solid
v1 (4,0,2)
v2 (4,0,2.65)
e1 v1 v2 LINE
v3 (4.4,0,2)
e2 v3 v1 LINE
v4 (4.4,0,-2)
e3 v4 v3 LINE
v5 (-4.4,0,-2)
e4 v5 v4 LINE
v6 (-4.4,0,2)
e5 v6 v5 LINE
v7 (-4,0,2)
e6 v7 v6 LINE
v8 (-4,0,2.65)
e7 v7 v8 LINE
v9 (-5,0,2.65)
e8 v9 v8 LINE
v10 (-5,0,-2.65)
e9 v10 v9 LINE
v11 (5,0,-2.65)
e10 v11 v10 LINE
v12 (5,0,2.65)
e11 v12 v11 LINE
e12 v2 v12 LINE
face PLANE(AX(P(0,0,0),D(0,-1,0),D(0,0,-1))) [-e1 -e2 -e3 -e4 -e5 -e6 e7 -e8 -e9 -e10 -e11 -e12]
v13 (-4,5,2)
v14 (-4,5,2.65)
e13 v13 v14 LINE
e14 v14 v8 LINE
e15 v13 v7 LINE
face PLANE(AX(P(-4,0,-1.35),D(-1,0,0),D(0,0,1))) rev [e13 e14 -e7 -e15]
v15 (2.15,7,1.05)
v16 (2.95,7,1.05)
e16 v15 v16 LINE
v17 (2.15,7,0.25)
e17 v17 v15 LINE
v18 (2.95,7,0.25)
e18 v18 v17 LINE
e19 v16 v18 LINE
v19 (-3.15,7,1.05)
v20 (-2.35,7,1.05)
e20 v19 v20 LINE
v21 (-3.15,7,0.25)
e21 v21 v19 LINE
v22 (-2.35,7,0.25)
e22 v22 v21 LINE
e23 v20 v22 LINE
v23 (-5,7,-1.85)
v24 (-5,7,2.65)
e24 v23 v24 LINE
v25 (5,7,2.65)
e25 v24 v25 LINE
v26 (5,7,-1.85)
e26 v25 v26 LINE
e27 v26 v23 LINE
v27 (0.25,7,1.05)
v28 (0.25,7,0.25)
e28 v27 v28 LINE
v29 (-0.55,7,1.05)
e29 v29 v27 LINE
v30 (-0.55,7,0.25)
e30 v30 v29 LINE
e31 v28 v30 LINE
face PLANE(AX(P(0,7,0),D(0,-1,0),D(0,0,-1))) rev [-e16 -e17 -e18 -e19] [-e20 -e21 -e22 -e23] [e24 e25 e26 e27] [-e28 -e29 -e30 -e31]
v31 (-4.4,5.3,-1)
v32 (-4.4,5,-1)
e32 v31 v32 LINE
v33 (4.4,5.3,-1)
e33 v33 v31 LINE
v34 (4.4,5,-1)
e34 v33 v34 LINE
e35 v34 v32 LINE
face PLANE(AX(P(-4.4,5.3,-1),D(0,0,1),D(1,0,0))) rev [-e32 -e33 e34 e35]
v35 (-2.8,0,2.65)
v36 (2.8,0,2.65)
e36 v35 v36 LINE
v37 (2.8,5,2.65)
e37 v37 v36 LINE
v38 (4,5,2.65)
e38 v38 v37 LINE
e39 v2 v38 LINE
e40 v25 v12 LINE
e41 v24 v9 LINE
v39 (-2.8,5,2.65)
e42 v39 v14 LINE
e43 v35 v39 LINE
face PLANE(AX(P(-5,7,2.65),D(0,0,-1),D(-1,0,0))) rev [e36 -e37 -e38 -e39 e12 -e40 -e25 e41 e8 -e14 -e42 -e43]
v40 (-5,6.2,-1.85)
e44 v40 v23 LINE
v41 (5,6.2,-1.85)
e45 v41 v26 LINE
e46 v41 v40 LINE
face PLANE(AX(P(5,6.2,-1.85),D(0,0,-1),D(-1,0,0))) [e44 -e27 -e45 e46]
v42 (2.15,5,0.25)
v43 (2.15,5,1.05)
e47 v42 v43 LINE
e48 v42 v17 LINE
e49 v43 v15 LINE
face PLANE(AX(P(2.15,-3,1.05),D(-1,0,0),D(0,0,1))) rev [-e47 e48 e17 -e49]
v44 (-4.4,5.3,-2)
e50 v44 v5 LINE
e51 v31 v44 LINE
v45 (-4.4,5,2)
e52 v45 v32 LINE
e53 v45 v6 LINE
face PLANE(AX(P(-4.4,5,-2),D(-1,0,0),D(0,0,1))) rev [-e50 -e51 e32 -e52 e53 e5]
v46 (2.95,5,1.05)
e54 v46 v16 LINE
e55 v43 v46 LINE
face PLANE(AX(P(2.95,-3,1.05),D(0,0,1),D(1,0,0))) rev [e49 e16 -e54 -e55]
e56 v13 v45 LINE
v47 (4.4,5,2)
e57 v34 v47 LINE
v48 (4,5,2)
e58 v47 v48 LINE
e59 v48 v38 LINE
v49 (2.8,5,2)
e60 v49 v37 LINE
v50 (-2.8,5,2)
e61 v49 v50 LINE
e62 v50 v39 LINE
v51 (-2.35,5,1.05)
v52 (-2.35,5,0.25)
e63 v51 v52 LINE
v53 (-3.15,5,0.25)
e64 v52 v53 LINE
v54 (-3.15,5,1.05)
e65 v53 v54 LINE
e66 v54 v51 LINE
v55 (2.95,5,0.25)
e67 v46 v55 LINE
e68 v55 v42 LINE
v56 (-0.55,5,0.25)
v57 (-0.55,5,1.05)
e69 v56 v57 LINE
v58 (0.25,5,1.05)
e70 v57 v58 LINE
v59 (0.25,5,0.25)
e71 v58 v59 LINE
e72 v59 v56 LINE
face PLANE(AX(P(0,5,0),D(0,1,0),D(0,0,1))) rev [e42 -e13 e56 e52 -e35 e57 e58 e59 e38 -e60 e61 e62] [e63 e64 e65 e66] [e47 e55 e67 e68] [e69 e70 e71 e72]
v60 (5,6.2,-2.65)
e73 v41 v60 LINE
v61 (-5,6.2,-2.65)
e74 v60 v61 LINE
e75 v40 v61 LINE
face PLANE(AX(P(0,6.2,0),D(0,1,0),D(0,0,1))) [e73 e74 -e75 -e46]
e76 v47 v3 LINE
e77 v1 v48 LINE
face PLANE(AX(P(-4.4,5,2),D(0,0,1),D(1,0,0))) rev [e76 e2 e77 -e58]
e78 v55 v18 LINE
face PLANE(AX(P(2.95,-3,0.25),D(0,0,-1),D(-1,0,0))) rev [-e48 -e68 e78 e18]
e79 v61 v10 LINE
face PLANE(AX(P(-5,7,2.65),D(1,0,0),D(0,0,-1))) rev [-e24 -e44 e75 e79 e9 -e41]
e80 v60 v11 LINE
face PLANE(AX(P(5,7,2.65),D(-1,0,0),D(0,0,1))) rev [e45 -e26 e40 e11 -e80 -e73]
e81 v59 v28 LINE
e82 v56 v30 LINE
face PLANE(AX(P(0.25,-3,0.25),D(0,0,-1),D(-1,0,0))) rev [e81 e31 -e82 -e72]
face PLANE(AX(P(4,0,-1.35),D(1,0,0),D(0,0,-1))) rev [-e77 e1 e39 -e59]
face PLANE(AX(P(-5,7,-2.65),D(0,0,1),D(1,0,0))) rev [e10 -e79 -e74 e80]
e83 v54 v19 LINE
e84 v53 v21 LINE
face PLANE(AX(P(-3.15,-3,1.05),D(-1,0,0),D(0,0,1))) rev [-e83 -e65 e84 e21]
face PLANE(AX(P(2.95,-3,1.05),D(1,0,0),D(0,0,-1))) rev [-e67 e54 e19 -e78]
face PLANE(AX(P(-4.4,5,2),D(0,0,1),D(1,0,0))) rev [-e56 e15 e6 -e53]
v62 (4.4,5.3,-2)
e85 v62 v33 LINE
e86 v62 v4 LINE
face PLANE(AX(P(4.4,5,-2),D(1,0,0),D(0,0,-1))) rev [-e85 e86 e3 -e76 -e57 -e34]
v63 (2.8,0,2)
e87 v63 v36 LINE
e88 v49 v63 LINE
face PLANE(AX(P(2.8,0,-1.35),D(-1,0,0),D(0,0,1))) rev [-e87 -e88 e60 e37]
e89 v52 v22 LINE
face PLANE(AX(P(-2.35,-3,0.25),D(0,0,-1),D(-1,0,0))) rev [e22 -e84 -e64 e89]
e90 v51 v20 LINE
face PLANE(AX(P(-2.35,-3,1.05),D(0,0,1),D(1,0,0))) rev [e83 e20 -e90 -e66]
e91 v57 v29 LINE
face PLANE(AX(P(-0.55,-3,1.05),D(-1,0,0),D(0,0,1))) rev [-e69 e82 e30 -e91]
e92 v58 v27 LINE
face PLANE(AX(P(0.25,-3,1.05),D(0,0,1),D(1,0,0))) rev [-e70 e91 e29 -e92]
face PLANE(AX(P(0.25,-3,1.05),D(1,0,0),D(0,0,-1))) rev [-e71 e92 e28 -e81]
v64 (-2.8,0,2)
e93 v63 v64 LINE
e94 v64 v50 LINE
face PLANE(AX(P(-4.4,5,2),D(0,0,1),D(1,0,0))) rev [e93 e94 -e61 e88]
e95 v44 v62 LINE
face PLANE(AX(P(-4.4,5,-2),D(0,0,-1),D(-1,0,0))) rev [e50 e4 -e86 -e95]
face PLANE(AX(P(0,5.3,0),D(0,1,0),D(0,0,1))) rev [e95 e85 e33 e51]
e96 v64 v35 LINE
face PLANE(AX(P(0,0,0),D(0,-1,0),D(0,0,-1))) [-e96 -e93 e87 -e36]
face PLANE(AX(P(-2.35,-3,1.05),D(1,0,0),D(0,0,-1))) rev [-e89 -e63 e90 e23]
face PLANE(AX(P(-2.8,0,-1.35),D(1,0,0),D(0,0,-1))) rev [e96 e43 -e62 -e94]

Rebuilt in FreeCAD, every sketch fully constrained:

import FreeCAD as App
import Part
import Sketcher
from FreeCAD import Vector
Q = App.Units.Quantity

doc = App.newDocument("Part")
body = doc.addObject("PartDesign::Body", "Body")

# Sketch on XZ plane
sketch1 = body.newObject("Sketcher::SketchObject", "Sketch")
sketch1.AttachmentSupport = (doc.getObject("XZ_Plane"), [""])
sketch1.MapMode = "FlatFace"
sketch1.addGeometry(Part.LineSegment(Vector(-5, -2.65, 0), Vector(-5, 2.65, 0)), False)
sketch1.addGeometry(Part.LineSegment(Vector(-5, 2.65, 0), Vector(5, 2.65, 0)), False)
sketch1.addGeometry(Part.LineSegment(Vector(5, 2.65, 0), Vector(5, -2.65, 0)), False)
sketch1.addGeometry(Part.LineSegment(Vector(5, -2.65, 0), Vector(-5, -2.65, 0)), False)
sketch1.addConstraint(Sketcher.Constraint("Coincident", 0, 2, 1, 1))
sketch1.addConstraint(Sketcher.Constraint("Coincident", 1, 2, 2, 1))
sketch1.addConstraint(Sketcher.Constraint("Coincident", 2, 2, 3, 1))
sketch1.addConstraint(Sketcher.Constraint("Coincident", 3, 2, 0, 1))
sketch1.addConstraint(Sketcher.Constraint("Vertical", 0))
sketch1.addConstraint(Sketcher.Constraint("Horizontal", 1))
sketch1.addConstraint(Sketcher.Constraint("Vertical", 2))
sketch1.addConstraint(Sketcher.Constraint("Horizontal", 3))
sketch1.addConstraint(Sketcher.Constraint("Symmetric", 0, 2, 2, 2, -1, 1))
sketch1.addConstraint(Sketcher.Constraint("DistanceX", 1, 1, 1, 2, Q("10 mm")))
sketch1.addConstraint(Sketcher.Constraint("DistanceY", 0, 1, 0, 2, Q("5.3 mm")))
pad1 = body.newObject("PartDesign::Pad", "Pad")
pad1.Profile = sketch1
pad1.Length = 7
pad1.Reversed = True

# Sketch on XZ plane
sketch2 = body.newObject("Sketcher::SketchObject", "Sketch001")
sketch2.AttachmentSupport = (doc.getObject("XZ_Plane"), [""])
sketch2.MapMode = "FlatFace"
sketch2.addGeometry(Part.LineSegment(Vector(-4.4, 2, 0), Vector(-4.4, -2, 0)), False)
sketch2.addGeometry(Part.LineSegment(Vector(-4.4, -2, 0), Vector(4.4, -2, 0)), False)
sketch2.addGeometry(Part.LineSegment(Vector(4.4, -2, 0), Vector(4.4, 2, 0)), False)
sketch2.addGeometry(Part.LineSegment(Vector(4.4, 2, 0), Vector(-4.4, 2, 0)), False)
sketch2.addConstraint(Sketcher.Constraint("Coincident", 0, 2, 1, 1))
sketch2.addConstraint(Sketcher.Constraint("Coincident", 1, 2, 2, 1))
sketch2.addConstraint(Sketcher.Constraint("Coincident", 2, 2, 3, 1))
sketch2.addConstraint(Sketcher.Constraint("Coincident", 3, 2, 0, 1))
sketch2.addConstraint(Sketcher.Constraint("Vertical", 0))
sketch2.addConstraint(Sketcher.Constraint("Horizontal", 1))
sketch2.addConstraint(Sketcher.Constraint("Vertical", 2))
sketch2.addConstraint(Sketcher.Constraint("Horizontal", 3))
sketch2.addConstraint(Sketcher.Constraint("Symmetric", 0, 2, 2, 2, -1, 1))
sketch2.addConstraint(Sketcher.Constraint("DistanceY", 0, 2, 0, 1, Q("4 mm")))
sketch2.addConstraint(Sketcher.Constraint("DistanceX", 1, 1, 1, 2, Q("8.8 mm")))
pocket1 = body.newObject("PartDesign::Pocket", "Pocket")
pocket1.Profile = sketch2
pocket1.Length = 5

# Sketch on XY plane
sketch3 = body.newObject("Sketcher::SketchObject", "Sketch002")
sketch3.AttachmentSupport = (doc.getObject("XY_Plane"), [""])
sketch3.MapMode = "FlatFace"
sketch3.AttachmentOffset = App.Placement(Vector(0, 0, 2.65), App.Rotation())
sketch3.addGeometry(Part.LineSegment(Vector(-4, 5, 0), Vector(-4, 0, 0)), False)
sketch3.addGeometry(Part.LineSegment(Vector(-4, 0, 0), Vector(-2.8, 0, 0)), False)
sketch3.addGeometry(Part.LineSegment(Vector(-2.8, 0, 0), Vector(-2.8, 5, 0)), False)
sketch3.addGeometry(Part.LineSegment(Vector(-2.8, 5, 0), Vector(-4, 5, 0)), False)
sketch3.addGeometry(Part.LineSegment(Vector(2.8, 5, 0), Vector(2.8, 0, 0)), False)
sketch3.addGeometry(Part.LineSegment(Vector(2.8, 0, 0), Vector(4, 0, 0)), False)
sketch3.addGeometry(Part.LineSegment(Vector(4, 0, 0), Vector(4, 5, 0)), False)
sketch3.addGeometry(Part.LineSegment(Vector(4, 5, 0), Vector(2.8, 5, 0)), False)
sketch3.addConstraint(Sketcher.Constraint("Coincident", 0, 2, 1, 1))
sketch3.addConstraint(Sketcher.Constraint("Coincident", 1, 2, 2, 1))
sketch3.addConstraint(Sketcher.Constraint("Coincident", 2, 2, 3, 1))
sketch3.addConstraint(Sketcher.Constraint("Coincident", 3, 2, 0, 1))
sketch3.addConstraint(Sketcher.Constraint("Coincident", 4, 2, 5, 1))
sketch3.addConstraint(Sketcher.Constraint("Coincident", 5, 2, 6, 1))
sketch3.addConstraint(Sketcher.Constraint("Coincident", 6, 2, 7, 1))
sketch3.addConstraint(Sketcher.Constraint("Coincident", 7, 2, 4, 1))
sketch3.addConstraint(Sketcher.Constraint("Vertical", 0))
sketch3.addConstraint(Sketcher.Constraint("Horizontal", 1))
sketch3.addConstraint(Sketcher.Constraint("Vertical", 2))
sketch3.addConstraint(Sketcher.Constraint("Horizontal", 3))
sketch3.addConstraint(Sketcher.Constraint("Vertical", 4))
sketch3.addConstraint(Sketcher.Constraint("Horizontal", 5))
sketch3.addConstraint(Sketcher.Constraint("Vertical", 6))
sketch3.addConstraint(Sketcher.Constraint("Horizontal", 7))
sketch3.addConstraint(Sketcher.Constraint("Symmetric", 1, 2, 4, 2, -1, 1))
sketch3.addConstraint(Sketcher.Constraint("Symmetric", 0, 2, 5, 2, -2))
sketch3.addConstraint(Sketcher.Constraint("Horizontal", 3, 2, 6, 2))
sketch3.addConstraint(Sketcher.Constraint("DistanceY", 0, 2, 0, 1, Q("5 mm")))
sketch3.addConstraint(Sketcher.Constraint("DistanceX", 1, 1, 1, 2, Q("1.2 mm")))
sketch3.addConstraint(Sketcher.Constraint("DistanceX", 0, 2, -1, 1, Q("4 mm")))
pocket2 = body.newObject("PartDesign::Pocket", "Pocket001")
pocket2.Profile = sketch3
pocket2.Length = 4

# Sketch on XZ plane
sketch4 = body.newObject("Sketcher::SketchObject", "Sketch003")
sketch4.AttachmentSupport = (doc.getObject("XZ_Plane"), [""])
sketch4.MapMode = "FlatFace"
sketch4.AttachmentOffset = App.Placement(Vector(0, 0, -7), App.Rotation())
sketch4.addGeometry(Part.LineSegment(Vector(-5, -2.65, 0), Vector(-5, -1.85, 0)), False)
sketch4.addGeometry(Part.LineSegment(Vector(-5, -1.85, 0), Vector(5, -1.85, 0)), False)
sketch4.addGeometry(Part.LineSegment(Vector(5, -1.85, 0), Vector(5, -2.65, 0)), False)
sketch4.addGeometry(Part.LineSegment(Vector(5, -2.65, 0), Vector(-5, -2.65, 0)), False)
sketch4.addConstraint(Sketcher.Constraint("Coincident", 0, 2, 1, 1))
sketch4.addConstraint(Sketcher.Constraint("Coincident", 1, 2, 2, 1))
sketch4.addConstraint(Sketcher.Constraint("Coincident", 2, 2, 3, 1))
sketch4.addConstraint(Sketcher.Constraint("Coincident", 3, 2, 0, 1))
sketch4.addConstraint(Sketcher.Constraint("Vertical", 0))
sketch4.addConstraint(Sketcher.Constraint("Horizontal", 1))
sketch4.addConstraint(Sketcher.Constraint("Vertical", 2))
sketch4.addConstraint(Sketcher.Constraint("Horizontal", 3))
sketch4.addConstraint(Sketcher.Constraint("DistanceX", 1, 1, 1, 2, Q("10 mm")))
sketch4.addConstraint(Sketcher.Constraint("DistanceY", 0, 1, 0, 2, Q("0.8 mm")))
sketch4.addConstraint(Sketcher.Constraint("DistanceX", 0, 2, -1, 1, Q("5 mm")))
sketch4.addConstraint(Sketcher.Constraint("DistanceY", 0, 2, -1, 1, Q("1.85 mm")))
pocket3 = body.newObject("PartDesign::Pocket", "Pocket002")
pocket3.Profile = sketch4
pocket3.Length = 0.8
pocket3.Reversed = True

# Sketch on XZ plane
sketch5 = body.newObject("Sketcher::SketchObject", "Sketch004")
sketch5.AttachmentSupport = (doc.getObject("XZ_Plane"), [""])
sketch5.MapMode = "FlatFace"
sketch5.AttachmentOffset = App.Placement(Vector(0, 0, -7), App.Rotation())
sketch5.addGeometry(Part.LineSegment(Vector(2.15, 0.25, 0), Vector(2.15, 1.05, 0)), False)
sketch5.addGeometry(Part.LineSegment(Vector(2.15, 1.05, 0), Vector(2.95, 1.05, 0)), False)
sketch5.addGeometry(Part.LineSegment(Vector(2.95, 1.05, 0), Vector(2.95, 0.25, 0)), False)
sketch5.addGeometry(Part.LineSegment(Vector(2.95, 0.25, 0), Vector(2.15, 0.25, 0)), False)
sketch5.addGeometry(Part.LineSegment(Vector(-0.55, 0.25, 0), Vector(-0.55, 1.05, 0)), False)
sketch5.addGeometry(Part.LineSegment(Vector(-0.55, 1.05, 0), Vector(0.25, 1.05, 0)), False)
sketch5.addGeometry(Part.LineSegment(Vector(0.25, 1.05, 0), Vector(0.25, 0.25, 0)), False)
sketch5.addGeometry(Part.LineSegment(Vector(0.25, 0.25, 0), Vector(-0.55, 0.25, 0)), False)
sketch5.addGeometry(Part.LineSegment(Vector(-3.15, 0.25, 0), Vector(-3.15, 1.05, 0)), False)
sketch5.addGeometry(Part.LineSegment(Vector(-3.15, 1.05, 0), Vector(-2.35, 1.05, 0)), False)
sketch5.addGeometry(Part.LineSegment(Vector(-2.35, 1.05, 0), Vector(-2.35, 0.25, 0)), False)
sketch5.addGeometry(Part.LineSegment(Vector(-2.35, 0.25, 0), Vector(-3.15, 0.25, 0)), False)
sketch5.addConstraint(Sketcher.Constraint("Coincident", 0, 2, 1, 1))
sketch5.addConstraint(Sketcher.Constraint("Coincident", 1, 2, 2, 1))
sketch5.addConstraint(Sketcher.Constraint("Coincident", 2, 2, 3, 1))
sketch5.addConstraint(Sketcher.Constraint("Coincident", 3, 2, 0, 1))
sketch5.addConstraint(Sketcher.Constraint("Coincident", 4, 2, 5, 1))
sketch5.addConstraint(Sketcher.Constraint("Coincident", 5, 2, 6, 1))
sketch5.addConstraint(Sketcher.Constraint("Coincident", 6, 2, 7, 1))
sketch5.addConstraint(Sketcher.Constraint("Coincident", 7, 2, 4, 1))
sketch5.addConstraint(Sketcher.Constraint("Coincident", 8, 2, 9, 1))
sketch5.addConstraint(Sketcher.Constraint("Coincident", 9, 2, 10, 1))
sketch5.addConstraint(Sketcher.Constraint("Coincident", 10, 2, 11, 1))
sketch5.addConstraint(Sketcher.Constraint("Coincident", 11, 2, 8, 1))
sketch5.addConstraint(Sketcher.Constraint("Vertical", 0))
sketch5.addConstraint(Sketcher.Constraint("Horizontal", 1))
sketch5.addConstraint(Sketcher.Constraint("Vertical", 2))
sketch5.addConstraint(Sketcher.Constraint("Horizontal", 3))
sketch5.addConstraint(Sketcher.Constraint("Vertical", 4))
sketch5.addConstraint(Sketcher.Constraint("Horizontal", 5))
sketch5.addConstraint(Sketcher.Constraint("Vertical", 6))
sketch5.addConstraint(Sketcher.Constraint("Horizontal", 7))
sketch5.addConstraint(Sketcher.Constraint("Vertical", 8))
sketch5.addConstraint(Sketcher.Constraint("Horizontal", 9))
sketch5.addConstraint(Sketcher.Constraint("Vertical", 10))
sketch5.addConstraint(Sketcher.Constraint("Horizontal", 11))
sketch5.addConstraint(Sketcher.Constraint("Horizontal", 1, 2, 4, 2))
sketch5.addConstraint(Sketcher.Constraint("Horizontal", 3, 2, 6, 2))
sketch5.addConstraint(Sketcher.Constraint("Horizontal", 5, 2, 8, 2))
sketch5.addConstraint(Sketcher.Constraint("Horizontal", 7, 2, 10, 2))
sketch5.addConstraint(Sketcher.Constraint("Equal", 3, 5))
sketch5.addConstraint(Sketcher.Constraint("Equal", 7, 9))
sketch5.addConstraint(Sketcher.Constraint("Equal", 11, 0))
sketch5.addConstraint(Sketcher.Constraint("DistanceX", 1, 1, 1, 2, Q("0.8 mm")))
sketch5.addConstraint(Sketcher.Constraint("DistanceX", 4, 2, 0, 2, Q("2.7 mm")))
sketch5.addConstraint(Sketcher.Constraint("DistanceX", 8, 2, 4, 2, Q("2.6 mm")))
sketch5.addConstraint(Sketcher.Constraint("DistanceX", -1, 1, 0, 2, Q("2.15 mm")))
sketch5.addConstraint(Sketcher.Constraint("DistanceY", -1, 1, 0, 2, Q("1.05 mm")))
pocket4 = body.newObject("PartDesign::Pocket", "Pocket003")
pocket4.Profile = sketch5
pocket4.Length = 10
pocket4.Reversed = True

# Sketch on XZ plane
sketch6 = body.newObject("Sketcher::SketchObject", "Sketch005")
sketch6.AttachmentSupport = (doc.getObject("XZ_Plane"), [""])
sketch6.MapMode = "FlatFace"
sketch6.AttachmentOffset = App.Placement(Vector(0, 0, -5), App.Rotation())
sketch6.addGeometry(Part.LineSegment(Vector(-4.4, -1, 0), Vector(-4.4, -2, 0)), False)
sketch6.addGeometry(Part.LineSegment(Vector(-4.4, -2, 0), Vector(4.4, -2, 0)), False)
sketch6.addGeometry(Part.LineSegment(Vector(4.4, -2, 0), Vector(4.4, -1, 0)), False)
sketch6.addGeometry(Part.LineSegment(Vector(4.4, -1, 0), Vector(-4.4, -1, 0)), False)
sketch6.addConstraint(Sketcher.Constraint("Coincident", 0, 2, 1, 1))
sketch6.addConstraint(Sketcher.Constraint("Coincident", 1, 2, 2, 1))
sketch6.addConstraint(Sketcher.Constraint("Coincident", 2, 2, 3, 1))
sketch6.addConstraint(Sketcher.Constraint("Coincident", 3, 2, 0, 1))
sketch6.addConstraint(Sketcher.Constraint("Vertical", 0))
sketch6.addConstraint(Sketcher.Constraint("Horizontal", 1))
sketch6.addConstraint(Sketcher.Constraint("Vertical", 2))
sketch6.addConstraint(Sketcher.Constraint("Horizontal", 3))
sketch6.addConstraint(Sketcher.Constraint("DistanceY", 0, 2, 0, 1, Q("1 mm")))
sketch6.addConstraint(Sketcher.Constraint("DistanceX", 1, 1, 1, 2, Q("8.8 mm")))
sketch6.addConstraint(Sketcher.Constraint("DistanceY", 0, 2, -1, 1, Q("2 mm")))
sketch6.addConstraint(Sketcher.Constraint("DistanceX", 0, 2, -1, 1, Q("4.4 mm")))
pocket5 = body.newObject("PartDesign::Pocket", "Pocket004")
pocket5.Profile = sketch6
pocket5.Length = 0.3

doc.recompute()
